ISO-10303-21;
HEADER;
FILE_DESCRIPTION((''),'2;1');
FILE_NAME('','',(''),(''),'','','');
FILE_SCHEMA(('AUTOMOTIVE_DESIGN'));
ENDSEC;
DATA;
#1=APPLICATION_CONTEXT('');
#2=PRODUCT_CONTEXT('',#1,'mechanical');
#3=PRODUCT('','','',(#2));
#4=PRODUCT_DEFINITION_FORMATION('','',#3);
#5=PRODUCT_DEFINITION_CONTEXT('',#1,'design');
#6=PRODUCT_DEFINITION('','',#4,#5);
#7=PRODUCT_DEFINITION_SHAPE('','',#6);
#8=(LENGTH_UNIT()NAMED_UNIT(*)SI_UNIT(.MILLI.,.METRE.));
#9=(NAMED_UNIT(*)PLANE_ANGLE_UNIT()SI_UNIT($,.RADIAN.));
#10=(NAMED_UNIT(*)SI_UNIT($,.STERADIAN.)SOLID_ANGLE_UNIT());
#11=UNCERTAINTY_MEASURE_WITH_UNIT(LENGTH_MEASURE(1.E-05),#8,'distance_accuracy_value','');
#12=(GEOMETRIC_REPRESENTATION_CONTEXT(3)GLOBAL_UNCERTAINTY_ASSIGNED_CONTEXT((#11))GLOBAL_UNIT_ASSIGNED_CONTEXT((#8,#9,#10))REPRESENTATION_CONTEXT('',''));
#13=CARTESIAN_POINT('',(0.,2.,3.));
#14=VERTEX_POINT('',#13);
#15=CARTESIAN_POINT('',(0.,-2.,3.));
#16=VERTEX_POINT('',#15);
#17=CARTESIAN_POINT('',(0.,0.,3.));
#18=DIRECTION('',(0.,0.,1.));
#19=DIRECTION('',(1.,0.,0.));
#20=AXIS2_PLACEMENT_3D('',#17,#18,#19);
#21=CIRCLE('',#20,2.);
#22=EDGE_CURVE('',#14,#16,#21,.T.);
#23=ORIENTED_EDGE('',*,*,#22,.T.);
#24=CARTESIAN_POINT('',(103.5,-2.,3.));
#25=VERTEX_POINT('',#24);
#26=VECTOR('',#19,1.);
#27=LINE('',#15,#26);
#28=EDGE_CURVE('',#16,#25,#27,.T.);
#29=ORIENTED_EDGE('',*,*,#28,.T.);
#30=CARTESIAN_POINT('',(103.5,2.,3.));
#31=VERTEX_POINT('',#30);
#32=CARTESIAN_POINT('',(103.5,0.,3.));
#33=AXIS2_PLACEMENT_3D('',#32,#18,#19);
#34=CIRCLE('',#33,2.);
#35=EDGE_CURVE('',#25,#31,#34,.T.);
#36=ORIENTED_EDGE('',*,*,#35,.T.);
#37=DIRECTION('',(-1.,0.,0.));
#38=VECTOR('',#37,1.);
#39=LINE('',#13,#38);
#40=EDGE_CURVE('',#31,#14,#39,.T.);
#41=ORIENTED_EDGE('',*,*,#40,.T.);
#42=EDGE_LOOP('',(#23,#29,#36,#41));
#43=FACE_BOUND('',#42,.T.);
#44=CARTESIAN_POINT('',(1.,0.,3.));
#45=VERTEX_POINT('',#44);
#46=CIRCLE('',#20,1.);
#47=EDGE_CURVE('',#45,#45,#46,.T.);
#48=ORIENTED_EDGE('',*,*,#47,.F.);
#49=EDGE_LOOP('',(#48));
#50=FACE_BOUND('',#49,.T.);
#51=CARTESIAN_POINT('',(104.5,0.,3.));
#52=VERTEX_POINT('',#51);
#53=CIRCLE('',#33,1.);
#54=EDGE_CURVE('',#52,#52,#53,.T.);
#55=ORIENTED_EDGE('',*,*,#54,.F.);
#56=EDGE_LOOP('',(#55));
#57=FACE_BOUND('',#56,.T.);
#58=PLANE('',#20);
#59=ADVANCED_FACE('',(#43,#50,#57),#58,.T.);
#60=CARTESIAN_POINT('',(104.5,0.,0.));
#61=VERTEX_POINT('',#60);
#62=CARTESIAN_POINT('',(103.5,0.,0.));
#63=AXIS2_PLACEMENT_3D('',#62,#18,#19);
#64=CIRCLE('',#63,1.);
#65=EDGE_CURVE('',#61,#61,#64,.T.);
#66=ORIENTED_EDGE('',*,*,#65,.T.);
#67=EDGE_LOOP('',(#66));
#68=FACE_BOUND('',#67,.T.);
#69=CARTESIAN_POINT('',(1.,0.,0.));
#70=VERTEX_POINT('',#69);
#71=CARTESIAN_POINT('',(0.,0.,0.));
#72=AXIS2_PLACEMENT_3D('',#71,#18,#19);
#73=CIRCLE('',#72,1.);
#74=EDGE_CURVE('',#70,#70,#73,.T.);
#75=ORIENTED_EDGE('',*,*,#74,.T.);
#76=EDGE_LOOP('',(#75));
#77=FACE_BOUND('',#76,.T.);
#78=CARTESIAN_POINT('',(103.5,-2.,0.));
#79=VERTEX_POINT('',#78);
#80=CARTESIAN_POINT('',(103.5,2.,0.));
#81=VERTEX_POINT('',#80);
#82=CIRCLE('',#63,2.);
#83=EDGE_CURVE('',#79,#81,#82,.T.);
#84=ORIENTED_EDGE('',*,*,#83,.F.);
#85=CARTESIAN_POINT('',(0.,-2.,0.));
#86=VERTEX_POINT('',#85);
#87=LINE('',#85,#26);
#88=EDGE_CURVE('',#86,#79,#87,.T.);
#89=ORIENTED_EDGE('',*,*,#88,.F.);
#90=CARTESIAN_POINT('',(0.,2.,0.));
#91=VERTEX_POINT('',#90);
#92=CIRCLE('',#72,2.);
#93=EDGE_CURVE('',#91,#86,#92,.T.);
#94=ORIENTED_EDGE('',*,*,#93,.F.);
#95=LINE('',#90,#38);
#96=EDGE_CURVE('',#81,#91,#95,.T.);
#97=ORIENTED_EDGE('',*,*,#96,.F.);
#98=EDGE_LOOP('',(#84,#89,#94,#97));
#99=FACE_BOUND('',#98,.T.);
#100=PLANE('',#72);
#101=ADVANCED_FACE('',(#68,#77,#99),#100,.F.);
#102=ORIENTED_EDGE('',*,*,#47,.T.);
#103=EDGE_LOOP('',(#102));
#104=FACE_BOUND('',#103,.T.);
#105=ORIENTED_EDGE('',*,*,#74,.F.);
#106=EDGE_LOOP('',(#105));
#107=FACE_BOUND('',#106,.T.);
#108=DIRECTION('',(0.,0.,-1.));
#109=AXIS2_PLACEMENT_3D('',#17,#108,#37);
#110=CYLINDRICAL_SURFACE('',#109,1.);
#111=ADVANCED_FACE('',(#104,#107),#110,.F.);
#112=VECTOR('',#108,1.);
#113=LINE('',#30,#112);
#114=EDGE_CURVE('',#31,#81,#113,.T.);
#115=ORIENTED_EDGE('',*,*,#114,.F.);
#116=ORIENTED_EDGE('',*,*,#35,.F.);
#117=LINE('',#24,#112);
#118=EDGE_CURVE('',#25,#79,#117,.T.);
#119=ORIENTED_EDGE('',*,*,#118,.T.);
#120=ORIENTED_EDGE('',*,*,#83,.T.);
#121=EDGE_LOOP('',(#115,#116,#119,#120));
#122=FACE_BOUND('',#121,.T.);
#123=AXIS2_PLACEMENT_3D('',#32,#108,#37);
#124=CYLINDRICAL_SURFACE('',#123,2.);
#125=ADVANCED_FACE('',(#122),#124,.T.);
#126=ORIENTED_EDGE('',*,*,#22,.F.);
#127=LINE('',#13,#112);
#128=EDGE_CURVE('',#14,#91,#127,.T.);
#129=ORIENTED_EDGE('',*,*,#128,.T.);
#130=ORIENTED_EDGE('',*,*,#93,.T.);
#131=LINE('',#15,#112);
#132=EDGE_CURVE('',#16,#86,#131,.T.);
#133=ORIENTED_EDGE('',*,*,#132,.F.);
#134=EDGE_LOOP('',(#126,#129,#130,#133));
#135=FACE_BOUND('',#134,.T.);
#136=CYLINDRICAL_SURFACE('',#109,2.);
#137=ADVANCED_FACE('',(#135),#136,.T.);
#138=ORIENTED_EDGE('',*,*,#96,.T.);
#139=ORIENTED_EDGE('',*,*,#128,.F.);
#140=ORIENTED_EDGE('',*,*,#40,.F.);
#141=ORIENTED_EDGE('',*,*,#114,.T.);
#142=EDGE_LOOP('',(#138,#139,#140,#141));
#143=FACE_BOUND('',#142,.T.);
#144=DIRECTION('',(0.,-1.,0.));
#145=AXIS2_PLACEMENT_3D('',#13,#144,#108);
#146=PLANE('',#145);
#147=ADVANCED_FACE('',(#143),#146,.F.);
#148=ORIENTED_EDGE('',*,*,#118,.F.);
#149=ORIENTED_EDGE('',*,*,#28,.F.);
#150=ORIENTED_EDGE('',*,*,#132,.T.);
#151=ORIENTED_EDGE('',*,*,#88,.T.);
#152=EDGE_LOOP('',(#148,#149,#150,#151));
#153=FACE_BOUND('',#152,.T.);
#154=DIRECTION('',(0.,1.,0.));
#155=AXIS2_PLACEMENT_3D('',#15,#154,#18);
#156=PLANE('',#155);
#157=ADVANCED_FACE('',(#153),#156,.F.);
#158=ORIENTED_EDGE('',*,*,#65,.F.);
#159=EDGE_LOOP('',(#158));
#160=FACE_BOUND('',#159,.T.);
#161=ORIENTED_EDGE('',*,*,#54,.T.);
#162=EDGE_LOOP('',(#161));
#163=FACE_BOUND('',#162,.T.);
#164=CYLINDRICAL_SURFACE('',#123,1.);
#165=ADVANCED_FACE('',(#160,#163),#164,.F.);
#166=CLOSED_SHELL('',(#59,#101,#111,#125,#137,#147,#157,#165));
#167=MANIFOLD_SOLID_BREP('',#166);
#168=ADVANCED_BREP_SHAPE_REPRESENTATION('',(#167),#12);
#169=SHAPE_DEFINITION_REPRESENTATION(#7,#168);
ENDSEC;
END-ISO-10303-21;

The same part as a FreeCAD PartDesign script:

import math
import FreeCAD as App
import Part
import Sketcher
from FreeCAD import Vector
Q = App.Units.Quantity

doc = App.newDocument("Part")
params = doc.addObject("Spreadsheet::Sheet", "Params")
for row, (alias, value) in enumerate([
    ("sketch1_diameter", "2 mm"),
    ("sketch1_radius", "2 mm"),
    ("sketch1_width", "103.5 mm"),
    ("pad1_length", "3 mm"),
], start=1):
    params.set(f"A{row}", alias)
    params.set(f"B{row}", "=" + value)
    params.setAlias(f"B{row}", alias)

body = doc.addObject("PartDesign::Body", "Body")

# Sketch on XY plane
sketch1 = doc.addObject("Sketcher::SketchObject", "Sketch")
body.addObject(sketch1)
sketch1.AttachmentSupport = (doc.XY_Plane, [""])
sketch1.MapMode = "FlatFace"
sketch1.addGeometry(Part.LineSegment(Vector(103.5, 2, 0), Vector(0, 2, 0)), False)
sketch1.addGeometry(Part.ArcOfCircle(Part.Circle(Vector(0, 0, 0), Vector(0, 0, 1), 2), math.radians(90), math.radians(270)), False)
sketch1.addGeometry(Part.LineSegment(Vector(0, -2, 0), Vector(103.5, -2, 0)), False)
sketch1.addGeometry(Part.ArcOfCircle(Part.Circle(Vector(103.5, 0, 0), Vector(0, 0, 1), 2), math.radians(-90), math.radians(90)), False)
sketch1.addGeometry(Part.Circle(Vector(103.5, 0, 0), Vector(0, 0, 1), 1), False)
sketch1.addGeometry(Part.Circle(Vector(0, 0, 0), Vector(0, 0, 1), 1), False)
sketch1.addConstraint(Sketcher.Constraint("Tangent", 0, 2, 1, 1))
sketch1.addConstraint(Sketcher.Constraint("Tangent", 1, 2, 2, 1))
sketch1.addConstraint(Sketcher.Constraint("Tangent", 2, 2, 3, 1))
sketch1.addConstraint(Sketcher.Constraint("Tangent", 3, 2, 0, 1))
sketch1.addConstraint(Sketcher.Constraint("Horizontal", 0))
sketch1.addConstraint(Sketcher.Constraint("Horizontal", 2))
sketch1.addConstraint(Sketcher.Constraint("Coincident", 1, 3, -1, 1))
sketch1.addConstraint(Sketcher.Constraint("Coincident", 5, 3, -1, 1))
sketch1.addConstraint(Sketcher.Constraint("Coincident", 4, 3, 3, 3))
sketch1.addConstraint(Sketcher.Constraint("Equal", 4, 5))
sketch1.addConstraint(Sketcher.Constraint("Diameter", 4, Q("2 mm")))
sketch1.addConstraint(Sketcher.Constraint("Radius", 1, Q("2 mm")))
sketch1.addConstraint(Sketcher.Constraint("DistanceX", 0, 2, 0, 1, Q("103.5 mm")))
sketch1.setExpression("Constraints[10]", "Params.sketch1_diameter")
sketch1.setExpression("Constraints[11]", "Params.sketch1_radius")
sketch1.setExpression("Constraints[12]", "Params.sketch1_width")
pad1 = doc.addObject("PartDesign::Pad", "Pad")
body.addObject(pad1)
pad1.Profile = sketch1
pad1.setExpression("Length", "Params.pad1_length")

doc.recompute()
